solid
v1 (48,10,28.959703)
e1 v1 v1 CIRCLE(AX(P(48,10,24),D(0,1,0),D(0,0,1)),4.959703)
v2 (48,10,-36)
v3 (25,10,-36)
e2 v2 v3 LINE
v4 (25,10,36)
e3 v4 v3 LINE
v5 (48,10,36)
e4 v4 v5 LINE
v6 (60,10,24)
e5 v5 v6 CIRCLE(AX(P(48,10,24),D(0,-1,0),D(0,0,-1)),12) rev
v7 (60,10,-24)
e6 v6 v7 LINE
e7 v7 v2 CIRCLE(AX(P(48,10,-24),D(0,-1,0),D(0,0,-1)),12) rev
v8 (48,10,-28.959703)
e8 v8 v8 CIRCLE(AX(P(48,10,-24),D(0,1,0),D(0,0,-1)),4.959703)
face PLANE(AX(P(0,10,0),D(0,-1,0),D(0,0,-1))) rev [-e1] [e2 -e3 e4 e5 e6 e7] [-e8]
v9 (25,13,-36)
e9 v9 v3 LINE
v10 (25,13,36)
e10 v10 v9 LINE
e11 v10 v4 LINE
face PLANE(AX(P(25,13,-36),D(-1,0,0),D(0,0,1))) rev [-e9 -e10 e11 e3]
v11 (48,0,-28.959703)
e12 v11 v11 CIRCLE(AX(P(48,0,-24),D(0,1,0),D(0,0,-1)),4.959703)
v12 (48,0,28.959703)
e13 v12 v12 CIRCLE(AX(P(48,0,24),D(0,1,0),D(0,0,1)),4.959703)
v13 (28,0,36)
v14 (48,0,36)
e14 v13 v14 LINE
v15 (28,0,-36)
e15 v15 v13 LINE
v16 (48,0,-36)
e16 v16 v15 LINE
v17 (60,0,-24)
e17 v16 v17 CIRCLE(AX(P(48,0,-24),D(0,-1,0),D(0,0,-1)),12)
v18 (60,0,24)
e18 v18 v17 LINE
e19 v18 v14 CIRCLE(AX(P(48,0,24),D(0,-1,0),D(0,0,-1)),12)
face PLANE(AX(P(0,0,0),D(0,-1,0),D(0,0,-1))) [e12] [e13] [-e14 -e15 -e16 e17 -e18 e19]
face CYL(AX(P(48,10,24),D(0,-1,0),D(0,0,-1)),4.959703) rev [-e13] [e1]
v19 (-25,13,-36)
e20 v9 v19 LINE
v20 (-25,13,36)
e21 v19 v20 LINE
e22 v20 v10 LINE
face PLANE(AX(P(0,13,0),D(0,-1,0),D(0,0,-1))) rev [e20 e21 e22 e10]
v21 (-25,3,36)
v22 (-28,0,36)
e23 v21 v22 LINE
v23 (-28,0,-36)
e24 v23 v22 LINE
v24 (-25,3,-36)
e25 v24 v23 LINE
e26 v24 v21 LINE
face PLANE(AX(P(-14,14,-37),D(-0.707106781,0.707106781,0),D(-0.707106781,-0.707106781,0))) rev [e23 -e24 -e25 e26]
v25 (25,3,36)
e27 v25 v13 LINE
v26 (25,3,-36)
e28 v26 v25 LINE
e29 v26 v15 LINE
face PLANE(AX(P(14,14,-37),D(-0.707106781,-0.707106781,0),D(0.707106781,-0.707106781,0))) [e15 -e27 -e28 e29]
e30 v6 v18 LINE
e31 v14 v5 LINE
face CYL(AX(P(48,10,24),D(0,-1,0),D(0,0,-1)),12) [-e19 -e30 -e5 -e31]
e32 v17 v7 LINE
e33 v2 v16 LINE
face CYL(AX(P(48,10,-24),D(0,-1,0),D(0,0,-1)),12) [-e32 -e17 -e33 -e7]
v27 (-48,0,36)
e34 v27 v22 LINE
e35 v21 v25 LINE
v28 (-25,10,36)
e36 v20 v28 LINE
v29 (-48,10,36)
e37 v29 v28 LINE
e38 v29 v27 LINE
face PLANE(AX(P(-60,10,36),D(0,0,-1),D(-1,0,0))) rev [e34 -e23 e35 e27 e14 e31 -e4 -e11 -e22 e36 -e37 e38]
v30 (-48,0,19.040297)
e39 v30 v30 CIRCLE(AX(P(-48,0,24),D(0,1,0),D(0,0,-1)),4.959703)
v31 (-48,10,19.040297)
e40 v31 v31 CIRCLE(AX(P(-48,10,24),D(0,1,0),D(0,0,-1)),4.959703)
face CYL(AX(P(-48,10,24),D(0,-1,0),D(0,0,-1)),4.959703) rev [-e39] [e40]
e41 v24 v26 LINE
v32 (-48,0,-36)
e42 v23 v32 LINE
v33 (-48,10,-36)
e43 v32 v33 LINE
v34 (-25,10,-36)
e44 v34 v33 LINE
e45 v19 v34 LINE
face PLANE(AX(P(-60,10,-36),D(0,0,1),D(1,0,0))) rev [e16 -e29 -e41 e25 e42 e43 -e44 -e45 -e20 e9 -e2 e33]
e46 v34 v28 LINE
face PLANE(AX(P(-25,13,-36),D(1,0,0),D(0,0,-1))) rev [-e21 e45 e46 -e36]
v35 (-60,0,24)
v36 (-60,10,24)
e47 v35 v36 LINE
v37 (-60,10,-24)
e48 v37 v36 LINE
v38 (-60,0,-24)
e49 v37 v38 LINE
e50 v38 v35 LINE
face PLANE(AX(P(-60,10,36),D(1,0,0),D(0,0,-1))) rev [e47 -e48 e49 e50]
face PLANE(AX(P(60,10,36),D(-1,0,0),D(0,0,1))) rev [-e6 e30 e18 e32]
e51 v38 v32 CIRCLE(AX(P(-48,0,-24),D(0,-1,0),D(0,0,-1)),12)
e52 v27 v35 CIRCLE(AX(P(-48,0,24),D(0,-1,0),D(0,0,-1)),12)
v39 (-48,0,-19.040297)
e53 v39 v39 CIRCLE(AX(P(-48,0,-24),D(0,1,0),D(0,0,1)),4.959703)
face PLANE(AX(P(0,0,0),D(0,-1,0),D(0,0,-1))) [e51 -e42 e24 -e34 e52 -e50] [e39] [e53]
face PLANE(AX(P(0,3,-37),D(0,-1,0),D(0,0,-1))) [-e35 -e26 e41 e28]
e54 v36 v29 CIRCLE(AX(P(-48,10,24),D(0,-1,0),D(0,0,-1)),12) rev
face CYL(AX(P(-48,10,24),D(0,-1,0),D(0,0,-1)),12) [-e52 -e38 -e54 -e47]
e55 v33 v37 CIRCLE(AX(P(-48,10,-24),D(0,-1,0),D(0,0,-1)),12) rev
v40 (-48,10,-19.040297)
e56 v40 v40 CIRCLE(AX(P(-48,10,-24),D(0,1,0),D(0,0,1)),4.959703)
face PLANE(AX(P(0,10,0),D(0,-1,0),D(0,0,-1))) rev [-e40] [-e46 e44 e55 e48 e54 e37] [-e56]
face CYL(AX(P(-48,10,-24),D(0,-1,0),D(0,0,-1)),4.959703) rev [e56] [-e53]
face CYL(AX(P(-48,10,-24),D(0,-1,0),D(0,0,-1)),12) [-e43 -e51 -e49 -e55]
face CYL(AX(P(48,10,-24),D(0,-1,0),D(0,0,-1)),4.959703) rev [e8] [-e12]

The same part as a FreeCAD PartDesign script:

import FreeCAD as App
import Part
import Sketcher
Q = App.Units.Quantity


def edges_at(feature, points):
    """Names of the edges that pass closest to the given points."""
    edges = feature.Shape.Edges
    near = lambda p: min(range(len(edges)), key=lambda i: edges[i].distToShape(Part.Vertex(*p))[0])
    return sorted({f"Edge{near(p) + 1}" for p in points})


def add_polygon(sketch, points):
    """Adds a closed chain of lines whose ends are joined by coincident constraints."""
    first, n = sketch.GeometryCount, len(points)
    for a, b in zip(points, points[1:] + points[:1]):
        sketch.addGeometry(Part.LineSegment(App.Vector(*a, 0), App.Vector(*b, 0)), False)
    for i in range(n):
        sketch.addConstraint(Sketcher.Constraint("Coincident", first + i, 2, first + (i + 1) % n, 1))

doc = App.newDocument("Part")
params = doc.addObject("Spreadsheet::Sheet", "Params")
for row, (alias, value) in enumerate([
    ("sketch1_width", "120 mm"),
    ("sketch1_height", "72 mm"),
    ("pad1_length", "10 mm"),
    ("fillet_radius", "12 mm"),
    ("sketch2_width", "56 mm"),
    ("sketch2_width2", "50 mm"),
    ("pocket1_length", "73 mm"),
    ("sketch3_width", "50 mm"),
    ("sketch3_height", "72 mm"),
    ("pad2_length", "3 mm"),
], start=1):
    params.set(f"A{row}", alias)
    params.set(f"B{row}", "=" + value)
    params.setAlias(f"B{row}", alias)

body = doc.addObject("PartDesign::Body", "Body")

# Sketch on XZ plane
sketch1 = body.newObject("Sketcher::SketchObject", "Sketch")
sketch1.AttachmentSupport = (doc.getObject("XZ_Plane"), [""])
sketch1.MapMode = "FlatFace"
add_polygon(sketch1, [(-60, -36), (-60, 36), (60, 36), (60, -36)])  # lines 0-3
sketch1.addGeometry(Part.Circle(App.Vector(-48, 24, 0), App.Vector(0, 0, 1), 5), False)  # 4
sketch1.addGeometry(Part.Circle(App.Vector(48, 24, 0), App.Vector(0, 0, 1), 5), False)  # 5
sketch1.addGeometry(Part.Circle(App.Vector(-48, -24, 0), App.Vector(0, 0, 1), 5), False)  # 6
sketch1.addGeometry(Part.Circle(App.Vector(48, -24, 0), App.Vector(0, 0, 1), 5), False)  # 7
sketch1.addConstraint(Sketcher.Constraint("Vertical", 0))
sketch1.addConstraint(Sketcher.Constraint("Horizontal", 1))
sketch1.addConstraint(Sketcher.Constraint("Vertical", 2))
sketch1.addConstraint(Sketcher.Constraint("Horizontal", 3))
sketch1.addConstraint(Sketcher.Constraint("Equal", 4, 5))
sketch1.addConstraint(Sketcher.Constraint("Equal", 5, 6))
sketch1.addConstraint(Sketcher.Constraint("Equal", 6, 7))
sketch1.addConstraint(Sketcher.Constraint("Symmetric", 5, 3, 6, 3, -1, 1))
sketch1.addConstraint(Sketcher.Constraint("Symmetric", 4, 3, 7, 3, -1, 1))
sketch1.addConstraint(Sketcher.Constraint("Symmetric", 0, 2, 2, 2, -1, 1))
sketch1.addConstraint(Sketcher.Constraint("Symmetric", 4, 3, 5, 3, -2))
sketch1.addConstraint(Sketcher.Constraint("DistanceX", 1, 1, 1, 2, Q("120 mm")))
sketch1.addConstraint(Sketcher.Constraint("DistanceY", 0, 1, 0, 2, Q("72 mm")))
sketch1.addConstraint(Sketcher.Constraint("DistanceX", 4, 3, -1, 1, Q("48 mm")))
sketch1.addConstraint(Sketcher.Constraint("DistanceY", -1, 1, 4, 3, Q("24 mm")))
sketch1.addConstraint(Sketcher.Constraint("Diameter", 4, Q("9.919407 mm")))
sketch1.setExpression("Constraints[15]", "Params.sketch1_width")
sketch1.setExpression("Constraints[16]", "Params.sketch1_height")
pad1 = body.newObject("PartDesign::Pad", "Pad")
pad1.Profile = sketch1
pad1.setExpression("Length", "Params.pad1_length")
pad1.Reversed = True
doc.recompute()

fillet = body.newObject("PartDesign::Fillet", "Fillet")
fillet.Base = (pad1, edges_at(pad1, [
    (60, 5, 36),
    (-60, 5, 36),
    (-60, 5, -36),
    (60, 5, -36),
]))
fillet.setExpression("Radius", "Params.fillet_radius")

# Sketch on XY plane
sketch2 = body.newObject("Sketcher::SketchObject", "Sketch001")
sketch2.AttachmentSupport = (doc.getObject("XY_Plane"), [""])
sketch2.MapMode = "FlatFace"
sketch2.AttachmentOffset = App.Placement(App.Vector(0, 0, 36), App.Rotation())
add_polygon(sketch2, [(-28, 0), (28, 0), (25, 3), (-25, 3)])  # lines 0-3
sketch2.addConstraint(Sketcher.Constraint("Horizontal", 0))
sketch2.addConstraint(Sketcher.Constraint("Horizontal", 2))
sketch2.addConstraint(Sketcher.Constraint("Symmetric", 0, 2, 3, 2, -1, 1))
sketch2.addConstraint(Sketcher.Constraint("Perpendicular", 1, 3))
sketch2.addConstraint(Sketcher.Constraint("Equal", 1, 3))
sketch2.addConstraint(Sketcher.Constraint("DistanceX", 0, 1, 0, 2, Q("56 mm")))
sketch2.addConstraint(Sketcher.Constraint("DistanceX", 2, 2, 2, 1, Q("50 mm")))
sketch2.setExpression("Constraints[9]", "Params.sketch2_width")
sketch2.setExpression("Constraints[10]", "Params.sketch2_width2")
pocket1 = body.newObject("PartDesign::Pocket", "Pocket")
pocket1.Profile = sketch2
pocket1.setExpression("Length", "Params.pocket1_length")

# Sketch on XZ plane
sketch3 = body.newObject("Sketcher::SketchObject", "Sketch002")
sketch3.AttachmentSupport = (doc.getObject("XZ_Plane"), [""])
sketch3.MapMode = "FlatFace"
sketch3.AttachmentOffset = App.Placement(App.Vector(0, 0, -10), App.Rotation())
add_polygon(sketch3, [(-25, -36), (-25, 36), (25, 36), (25, -36)])  # lines 0-3
sketch3.addConstraint(Sketcher.Constraint("Vertical", 0))
sketch3.addConstraint(Sketcher.Constraint("Horizontal", 1))
sketch3.addConstraint(Sketcher.Constraint("Vertical", 2))
sketch3.addConstraint(Sketcher.Constraint("Horizontal", 3))
sketch3.addConstraint(Sketcher.Constraint("Symmetric", 0, 2, 2, 2, -1, 1))
sketch3.addConstraint(Sketcher.Constraint("DistanceX", 1, 1, 1, 2, Q("50 mm")))
sketch3.addConstraint(Sketcher.Constraint("DistanceY", 0, 1, 0, 2, Q("72 mm")))
sketch3.setExpression("Constraints[9]", "Params.sketch3_width")
sketch3.setExpression("Constraints[10]", "Params.sketch3_height")
pad2 = body.newObject("PartDesign::Pad", "Pad001")
pad2.Profile = sketch3
pad2.setExpression("Length", "Params.pad2_length")
pad2.Reversed = True

doc.recompute()
